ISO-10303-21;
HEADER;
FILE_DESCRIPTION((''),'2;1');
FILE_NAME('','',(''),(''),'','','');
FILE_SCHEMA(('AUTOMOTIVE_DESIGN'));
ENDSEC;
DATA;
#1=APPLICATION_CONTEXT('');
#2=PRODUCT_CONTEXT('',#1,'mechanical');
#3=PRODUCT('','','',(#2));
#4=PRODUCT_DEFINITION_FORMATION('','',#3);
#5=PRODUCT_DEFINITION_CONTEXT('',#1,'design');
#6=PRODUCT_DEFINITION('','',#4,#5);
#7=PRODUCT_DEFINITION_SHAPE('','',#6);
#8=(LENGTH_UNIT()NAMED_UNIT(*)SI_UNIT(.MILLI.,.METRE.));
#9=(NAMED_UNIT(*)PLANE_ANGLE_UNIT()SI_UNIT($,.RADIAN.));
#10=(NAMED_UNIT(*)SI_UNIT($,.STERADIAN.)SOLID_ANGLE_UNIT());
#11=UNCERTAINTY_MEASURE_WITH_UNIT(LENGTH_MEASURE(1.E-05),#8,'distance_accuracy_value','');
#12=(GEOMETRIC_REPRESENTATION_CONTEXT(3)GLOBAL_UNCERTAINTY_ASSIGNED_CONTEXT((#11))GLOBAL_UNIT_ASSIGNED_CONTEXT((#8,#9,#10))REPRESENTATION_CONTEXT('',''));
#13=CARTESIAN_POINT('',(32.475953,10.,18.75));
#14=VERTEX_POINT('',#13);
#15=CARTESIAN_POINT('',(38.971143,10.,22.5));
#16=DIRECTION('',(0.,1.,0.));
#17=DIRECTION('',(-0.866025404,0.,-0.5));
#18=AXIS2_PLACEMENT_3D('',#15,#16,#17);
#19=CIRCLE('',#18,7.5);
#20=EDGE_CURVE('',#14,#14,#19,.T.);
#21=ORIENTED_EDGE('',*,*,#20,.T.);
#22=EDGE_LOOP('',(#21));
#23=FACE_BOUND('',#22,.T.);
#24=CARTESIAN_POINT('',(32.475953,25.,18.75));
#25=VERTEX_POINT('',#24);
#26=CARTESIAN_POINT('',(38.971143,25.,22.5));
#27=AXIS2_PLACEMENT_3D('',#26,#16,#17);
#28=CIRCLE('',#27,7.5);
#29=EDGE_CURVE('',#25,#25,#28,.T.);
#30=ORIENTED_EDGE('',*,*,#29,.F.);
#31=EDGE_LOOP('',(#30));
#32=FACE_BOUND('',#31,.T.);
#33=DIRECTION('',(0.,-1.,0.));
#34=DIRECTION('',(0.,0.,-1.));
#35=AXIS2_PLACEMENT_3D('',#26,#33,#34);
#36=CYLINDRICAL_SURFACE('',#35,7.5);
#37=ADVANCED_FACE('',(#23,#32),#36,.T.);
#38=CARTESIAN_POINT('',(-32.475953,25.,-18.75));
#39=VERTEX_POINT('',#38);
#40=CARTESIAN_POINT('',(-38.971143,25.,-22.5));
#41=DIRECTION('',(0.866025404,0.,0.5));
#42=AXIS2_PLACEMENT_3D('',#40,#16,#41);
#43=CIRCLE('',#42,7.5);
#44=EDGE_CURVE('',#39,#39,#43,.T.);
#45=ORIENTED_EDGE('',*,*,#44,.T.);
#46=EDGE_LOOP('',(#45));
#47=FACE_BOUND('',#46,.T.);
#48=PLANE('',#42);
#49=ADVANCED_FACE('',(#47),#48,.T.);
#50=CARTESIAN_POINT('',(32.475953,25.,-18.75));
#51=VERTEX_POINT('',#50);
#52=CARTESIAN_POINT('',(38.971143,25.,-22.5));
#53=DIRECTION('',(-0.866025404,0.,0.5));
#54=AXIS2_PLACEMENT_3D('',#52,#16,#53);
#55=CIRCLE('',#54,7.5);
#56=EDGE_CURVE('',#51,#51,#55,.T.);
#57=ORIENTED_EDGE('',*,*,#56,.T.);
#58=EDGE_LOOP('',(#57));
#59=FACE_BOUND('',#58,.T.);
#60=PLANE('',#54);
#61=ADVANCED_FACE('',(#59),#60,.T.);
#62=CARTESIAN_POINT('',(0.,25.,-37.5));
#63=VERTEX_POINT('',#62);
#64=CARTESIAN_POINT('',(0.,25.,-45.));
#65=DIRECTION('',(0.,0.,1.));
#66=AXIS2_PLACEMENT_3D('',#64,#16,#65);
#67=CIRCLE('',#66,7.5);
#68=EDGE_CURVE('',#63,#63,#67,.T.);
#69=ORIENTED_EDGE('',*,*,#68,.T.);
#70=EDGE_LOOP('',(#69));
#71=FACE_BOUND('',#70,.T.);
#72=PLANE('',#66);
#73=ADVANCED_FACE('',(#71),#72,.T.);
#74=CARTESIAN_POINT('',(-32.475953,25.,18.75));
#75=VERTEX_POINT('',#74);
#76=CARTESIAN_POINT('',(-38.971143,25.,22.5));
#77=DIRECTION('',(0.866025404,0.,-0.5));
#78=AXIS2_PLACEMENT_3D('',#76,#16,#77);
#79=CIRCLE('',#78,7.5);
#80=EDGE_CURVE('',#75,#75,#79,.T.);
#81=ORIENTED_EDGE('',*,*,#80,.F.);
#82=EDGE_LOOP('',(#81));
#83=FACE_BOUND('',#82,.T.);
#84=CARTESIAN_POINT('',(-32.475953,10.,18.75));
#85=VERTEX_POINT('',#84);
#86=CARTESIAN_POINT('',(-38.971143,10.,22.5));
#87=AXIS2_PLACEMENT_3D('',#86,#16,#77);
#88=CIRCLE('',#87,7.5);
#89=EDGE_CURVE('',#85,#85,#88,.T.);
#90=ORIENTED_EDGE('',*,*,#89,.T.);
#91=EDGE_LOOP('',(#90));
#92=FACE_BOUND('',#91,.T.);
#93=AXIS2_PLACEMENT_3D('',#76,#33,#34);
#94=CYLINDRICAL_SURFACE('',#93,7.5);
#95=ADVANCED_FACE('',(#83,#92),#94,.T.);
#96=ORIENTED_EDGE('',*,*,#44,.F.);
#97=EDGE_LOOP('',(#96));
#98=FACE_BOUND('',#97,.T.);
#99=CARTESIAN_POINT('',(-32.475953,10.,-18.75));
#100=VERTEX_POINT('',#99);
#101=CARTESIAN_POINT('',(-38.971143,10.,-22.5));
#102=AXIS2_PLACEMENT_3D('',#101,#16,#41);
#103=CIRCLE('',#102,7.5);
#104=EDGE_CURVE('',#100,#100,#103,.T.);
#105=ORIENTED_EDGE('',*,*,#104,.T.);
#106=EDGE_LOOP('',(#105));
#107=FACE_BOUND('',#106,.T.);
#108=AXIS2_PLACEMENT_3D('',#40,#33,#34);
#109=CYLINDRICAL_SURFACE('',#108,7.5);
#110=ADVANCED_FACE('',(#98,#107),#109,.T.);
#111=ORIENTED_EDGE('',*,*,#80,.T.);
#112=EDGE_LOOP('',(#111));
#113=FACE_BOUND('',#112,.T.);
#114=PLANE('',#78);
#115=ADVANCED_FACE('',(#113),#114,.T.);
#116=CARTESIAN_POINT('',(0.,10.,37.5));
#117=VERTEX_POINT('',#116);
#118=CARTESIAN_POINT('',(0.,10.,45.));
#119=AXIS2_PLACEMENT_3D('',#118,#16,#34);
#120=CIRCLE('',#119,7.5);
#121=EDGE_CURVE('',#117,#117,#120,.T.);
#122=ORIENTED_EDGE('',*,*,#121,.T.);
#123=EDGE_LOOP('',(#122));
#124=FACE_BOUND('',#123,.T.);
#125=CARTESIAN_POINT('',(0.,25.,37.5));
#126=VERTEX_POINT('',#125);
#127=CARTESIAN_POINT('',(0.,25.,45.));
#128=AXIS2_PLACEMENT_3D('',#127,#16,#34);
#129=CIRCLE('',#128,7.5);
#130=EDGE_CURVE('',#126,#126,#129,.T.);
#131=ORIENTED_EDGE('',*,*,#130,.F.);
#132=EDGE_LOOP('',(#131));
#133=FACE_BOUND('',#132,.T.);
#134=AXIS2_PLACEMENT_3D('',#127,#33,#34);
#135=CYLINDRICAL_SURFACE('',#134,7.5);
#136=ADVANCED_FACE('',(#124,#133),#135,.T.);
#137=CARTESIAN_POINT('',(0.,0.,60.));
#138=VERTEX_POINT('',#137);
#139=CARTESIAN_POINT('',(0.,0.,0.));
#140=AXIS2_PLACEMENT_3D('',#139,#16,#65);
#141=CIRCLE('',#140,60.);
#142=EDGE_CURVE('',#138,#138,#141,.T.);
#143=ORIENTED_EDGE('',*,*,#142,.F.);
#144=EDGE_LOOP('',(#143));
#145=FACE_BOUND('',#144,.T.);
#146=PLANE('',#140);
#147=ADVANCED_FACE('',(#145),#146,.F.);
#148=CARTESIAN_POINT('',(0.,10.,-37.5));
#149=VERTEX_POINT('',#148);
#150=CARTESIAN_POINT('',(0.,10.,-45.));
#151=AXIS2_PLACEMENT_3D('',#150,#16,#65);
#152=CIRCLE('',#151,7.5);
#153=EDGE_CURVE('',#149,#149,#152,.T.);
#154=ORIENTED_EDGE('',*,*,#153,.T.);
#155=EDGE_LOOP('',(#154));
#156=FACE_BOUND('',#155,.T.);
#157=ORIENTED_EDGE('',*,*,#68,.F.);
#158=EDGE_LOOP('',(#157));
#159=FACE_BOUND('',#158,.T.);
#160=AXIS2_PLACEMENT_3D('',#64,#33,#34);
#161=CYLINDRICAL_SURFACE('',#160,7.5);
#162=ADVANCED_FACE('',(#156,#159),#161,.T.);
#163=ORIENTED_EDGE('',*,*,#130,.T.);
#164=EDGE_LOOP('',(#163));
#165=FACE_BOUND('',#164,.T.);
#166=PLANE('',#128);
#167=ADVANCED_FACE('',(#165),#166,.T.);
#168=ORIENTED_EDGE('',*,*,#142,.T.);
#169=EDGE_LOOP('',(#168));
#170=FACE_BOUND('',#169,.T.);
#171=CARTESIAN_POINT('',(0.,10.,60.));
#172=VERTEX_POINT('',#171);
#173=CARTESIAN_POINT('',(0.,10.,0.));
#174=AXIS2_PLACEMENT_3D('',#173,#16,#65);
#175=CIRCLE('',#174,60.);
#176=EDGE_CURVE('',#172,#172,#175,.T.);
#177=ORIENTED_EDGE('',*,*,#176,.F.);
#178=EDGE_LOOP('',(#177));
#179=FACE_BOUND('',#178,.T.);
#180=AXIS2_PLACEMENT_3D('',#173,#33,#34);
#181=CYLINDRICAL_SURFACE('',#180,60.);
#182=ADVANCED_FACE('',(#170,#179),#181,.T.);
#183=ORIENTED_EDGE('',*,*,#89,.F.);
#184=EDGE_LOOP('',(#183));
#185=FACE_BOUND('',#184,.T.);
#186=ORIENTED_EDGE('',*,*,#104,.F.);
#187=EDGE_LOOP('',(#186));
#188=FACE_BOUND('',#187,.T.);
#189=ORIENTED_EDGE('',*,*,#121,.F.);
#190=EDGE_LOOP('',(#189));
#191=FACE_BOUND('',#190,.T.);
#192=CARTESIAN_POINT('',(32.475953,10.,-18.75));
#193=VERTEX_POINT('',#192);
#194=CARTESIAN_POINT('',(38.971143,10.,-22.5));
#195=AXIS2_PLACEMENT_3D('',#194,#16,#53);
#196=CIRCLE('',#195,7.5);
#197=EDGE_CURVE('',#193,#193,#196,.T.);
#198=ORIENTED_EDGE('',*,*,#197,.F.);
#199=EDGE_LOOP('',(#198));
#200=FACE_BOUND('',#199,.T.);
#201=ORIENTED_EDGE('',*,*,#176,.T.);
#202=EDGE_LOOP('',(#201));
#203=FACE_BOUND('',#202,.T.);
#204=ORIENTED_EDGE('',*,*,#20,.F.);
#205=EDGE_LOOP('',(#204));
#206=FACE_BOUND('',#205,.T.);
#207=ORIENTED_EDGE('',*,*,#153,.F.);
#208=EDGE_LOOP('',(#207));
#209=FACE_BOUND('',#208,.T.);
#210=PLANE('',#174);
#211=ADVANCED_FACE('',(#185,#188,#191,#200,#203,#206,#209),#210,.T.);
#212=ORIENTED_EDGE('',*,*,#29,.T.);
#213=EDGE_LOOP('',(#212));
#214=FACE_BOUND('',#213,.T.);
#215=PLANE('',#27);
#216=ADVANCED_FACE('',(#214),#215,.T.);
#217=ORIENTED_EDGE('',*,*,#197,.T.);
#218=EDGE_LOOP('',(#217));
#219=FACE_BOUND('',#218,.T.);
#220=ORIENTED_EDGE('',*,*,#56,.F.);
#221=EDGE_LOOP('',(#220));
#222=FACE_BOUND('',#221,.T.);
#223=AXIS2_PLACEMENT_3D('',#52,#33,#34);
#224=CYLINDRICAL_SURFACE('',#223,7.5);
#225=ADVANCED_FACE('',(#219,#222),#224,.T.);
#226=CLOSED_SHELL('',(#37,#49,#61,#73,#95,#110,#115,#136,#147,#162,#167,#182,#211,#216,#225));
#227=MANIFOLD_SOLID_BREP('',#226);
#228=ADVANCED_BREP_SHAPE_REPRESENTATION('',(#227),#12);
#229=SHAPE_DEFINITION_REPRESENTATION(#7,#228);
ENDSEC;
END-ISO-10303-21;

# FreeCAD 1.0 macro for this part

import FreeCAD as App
import Part
import Sketcher
from FreeCAD import Vector

doc = App.newDocument("Part")
params = doc.addObject("Spreadsheet::Sheet", "Params")
for row, (alias, value) in enumerate([
    ("sketch1_diameter", "120 mm"),
    ("pad1_length", "10 mm"),
    ("sketch2_diameter", "15 mm"),
    ("pad2_length", "15 mm"),
], start=1):
    params.set(f"A{row}", alias)
    params.set(f"B{row}", "=" + value)
    params.setAlias(f"B{row}", alias)

body = doc.addObject("PartDesign::Body", "Body")

# Sketch on XZ plane
sketch1 = body.newObject("Sketcher::SketchObject", "Sketch")
sketch1.AttachmentSupport = (doc.getObject("XZ_Plane"), [""])
sketch1.MapMode = "FlatFace"
sketch1.addGeometry(Part.Circle(Vector(0, 0, 0), Vector(0, 0, 1), 60), False)
sketch1.addConstraint([
    Sketcher.Constraint("Coincident", 0, 3, -1, 1),
    Sketcher.Constraint("Diameter", 0, 120.0),
])
sketch1.setExpression("Constraints[1]", "Params.sketch1_diameter")
pad1 = body.newObject("PartDesign::Pad", "Pad")
pad1.Profile = sketch1
pad1.setExpression("Length", "Params.pad1_length")
pad1.Reversed = True

# Sketch on XZ plane
sketch2 = body.newObject("Sketcher::SketchObject", "Sketch001")
sketch2.AttachmentSupport = (doc.getObject("XZ_Plane"), [""])
sketch2.MapMode = "FlatFace"
sketch2.AttachmentOffset = App.Placement(Vector(0, 0, -10), App.Rotation())
sketch2.addGeometry(Part.Circle(Vector(0, -45, 0), Vector(0, 0, 1), 7.5), False)
sketch2.addConstraint([
    Sketcher.Constraint("PointOnObject", 0, 3, -2),
    Sketcher.Constraint("Diameter", 0, 15.0),
    Sketcher.Constraint("DistanceY", 0, 3, -1, 1, 45.0),
])
sketch2.setExpression("Constraints[1]", "Params.sketch2_diameter")
pad2 = body.newObject("PartDesign::Pad", "Pad001")
pad2.Profile = sketch2
pad2.setExpression("Length", "Params.pad2_length")
pad2.Reversed = True
doc.recompute()

polarpattern = body.newObject("PartDesign::PolarPattern", "PolarPattern")
polarpattern.Originals = [pad2]
polarpattern.Axis = (doc.getObject("Y_Axis"), [""])
polarpattern.Angle = 360
polarpattern.Occurrences = 6
body.Tip = polarpattern

doc.recompute()
